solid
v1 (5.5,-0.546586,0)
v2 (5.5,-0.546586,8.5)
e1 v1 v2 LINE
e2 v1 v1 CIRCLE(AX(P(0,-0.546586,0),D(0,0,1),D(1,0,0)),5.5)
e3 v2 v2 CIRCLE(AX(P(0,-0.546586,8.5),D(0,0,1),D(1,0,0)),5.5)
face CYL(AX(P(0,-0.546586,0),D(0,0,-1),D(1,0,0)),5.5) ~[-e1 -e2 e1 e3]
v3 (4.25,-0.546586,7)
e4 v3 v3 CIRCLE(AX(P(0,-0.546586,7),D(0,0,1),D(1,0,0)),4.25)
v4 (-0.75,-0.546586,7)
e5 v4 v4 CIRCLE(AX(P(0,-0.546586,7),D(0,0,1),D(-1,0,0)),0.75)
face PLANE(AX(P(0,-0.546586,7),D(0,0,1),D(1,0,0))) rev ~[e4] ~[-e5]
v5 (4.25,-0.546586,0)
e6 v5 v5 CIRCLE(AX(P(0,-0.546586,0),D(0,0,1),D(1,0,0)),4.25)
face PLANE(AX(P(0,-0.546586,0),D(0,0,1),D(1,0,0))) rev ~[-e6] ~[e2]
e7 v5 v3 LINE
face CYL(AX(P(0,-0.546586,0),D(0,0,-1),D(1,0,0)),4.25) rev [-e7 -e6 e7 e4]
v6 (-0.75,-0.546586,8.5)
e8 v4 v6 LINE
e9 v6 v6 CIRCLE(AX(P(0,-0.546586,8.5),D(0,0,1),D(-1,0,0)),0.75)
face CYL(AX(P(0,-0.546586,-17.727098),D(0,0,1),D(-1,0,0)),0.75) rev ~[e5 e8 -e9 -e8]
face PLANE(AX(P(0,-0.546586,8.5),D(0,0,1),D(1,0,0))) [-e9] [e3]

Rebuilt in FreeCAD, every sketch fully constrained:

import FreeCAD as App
import Part
import Sketcher
from FreeCAD import Vector

doc = App.newDocument("Part")
params = doc.addObject("Spreadsheet::Sheet", "Params")
for row, (alias, value) in enumerate([
    ("sketch1_diameter", "11 mm"),
    ("pad1_length", "8.5 mm"),
    ("sketch2_diameter", "8.5 mm"),
    ("pocket1_length", "7 mm"),
    ("sketch3_diameter", "1.5 mm"),
    ("hole_diameter", "1.5 mm"),
], start=1):
    params.set(f"A{row}", alias)
    params.set(f"B{row}", "=" + value)
    params.setAlias(f"B{row}", alias)

body = doc.addObject("PartDesign::Body", "Body")

# Sketch on XY plane
sketch1 = body.newObject("Sketcher::SketchObject", "Sketch")
sketch1.AttachmentSupport = (doc.getObject("XY_Plane"), [""])
sketch1.MapMode = "FlatFace"
sketch1.addGeometry(Part.Circle(Vector(0, -0.546586, 0), Vector(0, 0, 1), 5.5), False)
sketch1.addConstraint([
    Sketcher.Constraint("PointOnObject", 0, 3, -2),
    Sketcher.Constraint("Diameter", 0, 11.0),
    Sketcher.Constraint("DistanceY", 0, 3, -1, 1, 0.546586),
])
sketch1.setExpression("Constraints[1]", "Params.sketch1_diameter")
pad1 = body.newObject("PartDesign::Pad", "Pad")
pad1.Profile = sketch1
pad1.setExpression("Length", "Params.pad1_length")

# Sketch on XY plane
sketch2 = body.newObject("Sketcher::SketchObject", "Sketch001")
sketch2.AttachmentSupport = (doc.getObject("XY_Plane"), [""])
sketch2.MapMode = "FlatFace"
sketch2.addGeometry(Part.Circle(Vector(0, -0.546586, 0), Vector(0, 0, 1), 4.25), False)
sketch2.addConstraint([
    Sketcher.Constraint("PointOnObject", 0, 3, -2),
    Sketcher.Constraint("Diameter", 0, 8.5),
    Sketcher.Constraint("DistanceY", 0, 3, -1, 1, 0.546586),
])
sketch2.setExpression("Constraints[1]", "Params.sketch2_diameter")
pocket1 = body.newObject("PartDesign::Pocket", "Pocket")
pocket1.Profile = sketch2
pocket1.setExpression("Length", "Params.pocket1_length")
pocket1.Reversed = True

# Sketch on XY plane
sketch3 = body.newObject("Sketcher::SketchObject", "Sketch002")
sketch3.AttachmentSupport = (doc.getObject("XY_Plane"), [""])
sketch3.MapMode = "FlatFace"
sketch3.addGeometry(Part.Circle(Vector(0, -0.546586, 0), Vector(0, 0, 1), 0.75), False)
sketch3.addConstraint([
    Sketcher.Constraint("PointOnObject", 0, 3, -2),
    Sketcher.Constraint("Diameter", 0, 1.5),
    Sketcher.Constraint("DistanceY", 0, 3, -1, 1, 0.546586),
])
sketch3.setExpression("Constraints[1]", "Params.sketch3_diameter")
doc.recompute()
hole = body.newObject("PartDesign::Hole", "Hole")
hole.Profile = sketch3
hole.ThreadType = "None"
hole.setExpression("Diameter", "Params.hole_diameter")
hole.DepthType = "ThroughAll"
hole.Reversed = True

doc.recompute()
